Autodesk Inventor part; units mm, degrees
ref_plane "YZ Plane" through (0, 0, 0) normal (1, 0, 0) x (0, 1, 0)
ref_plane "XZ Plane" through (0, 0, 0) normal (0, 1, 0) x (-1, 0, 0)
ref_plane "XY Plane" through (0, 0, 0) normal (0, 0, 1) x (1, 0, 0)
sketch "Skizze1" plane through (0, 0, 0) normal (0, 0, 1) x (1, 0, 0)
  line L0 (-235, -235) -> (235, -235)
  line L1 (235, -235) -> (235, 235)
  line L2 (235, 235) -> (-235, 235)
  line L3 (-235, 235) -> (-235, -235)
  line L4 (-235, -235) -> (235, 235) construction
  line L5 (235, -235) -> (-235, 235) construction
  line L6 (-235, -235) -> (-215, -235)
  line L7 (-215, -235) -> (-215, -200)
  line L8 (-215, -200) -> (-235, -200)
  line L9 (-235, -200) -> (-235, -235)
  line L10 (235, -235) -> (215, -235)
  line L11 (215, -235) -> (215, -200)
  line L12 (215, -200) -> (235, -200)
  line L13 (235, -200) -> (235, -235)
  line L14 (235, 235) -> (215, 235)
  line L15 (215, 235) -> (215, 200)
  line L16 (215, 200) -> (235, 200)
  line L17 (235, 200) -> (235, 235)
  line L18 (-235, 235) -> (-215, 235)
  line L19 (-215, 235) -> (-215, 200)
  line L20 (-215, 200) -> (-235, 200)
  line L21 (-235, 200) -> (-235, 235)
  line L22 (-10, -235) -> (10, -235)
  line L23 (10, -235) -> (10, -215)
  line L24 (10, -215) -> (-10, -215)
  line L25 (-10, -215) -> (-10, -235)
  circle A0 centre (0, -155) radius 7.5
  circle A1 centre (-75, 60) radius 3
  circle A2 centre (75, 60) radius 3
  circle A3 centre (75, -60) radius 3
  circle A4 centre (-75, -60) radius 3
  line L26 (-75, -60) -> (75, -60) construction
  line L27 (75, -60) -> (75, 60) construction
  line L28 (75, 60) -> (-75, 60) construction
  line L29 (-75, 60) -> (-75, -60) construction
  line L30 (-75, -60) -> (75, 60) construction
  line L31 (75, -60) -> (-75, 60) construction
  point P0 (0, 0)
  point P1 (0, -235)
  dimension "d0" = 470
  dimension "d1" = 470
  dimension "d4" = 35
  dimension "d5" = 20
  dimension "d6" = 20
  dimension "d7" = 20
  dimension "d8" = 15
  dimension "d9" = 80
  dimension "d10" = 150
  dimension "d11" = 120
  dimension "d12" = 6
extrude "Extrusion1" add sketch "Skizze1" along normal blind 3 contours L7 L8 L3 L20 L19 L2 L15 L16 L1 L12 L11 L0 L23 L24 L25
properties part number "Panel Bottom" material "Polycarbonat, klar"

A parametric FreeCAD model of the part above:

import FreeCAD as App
import Part
import Sketcher

V = App.Vector
Q = App.Units.Quantity


def add_polygon(sketch, points):
    """Adds a closed chain of lines whose ends are joined by coincident constraints."""
    first, n = sketch.GeometryCount, len(points)
    for a, b in zip(points, points[1:] + points[:1]):
        sketch.addGeometry(Part.LineSegment(App.Vector(*a, 0), App.Vector(*b, 0)), False)
    for i in range(n):
        sketch.addConstraint(Sketcher.Constraint("Coincident", first + i, 2, first + (i + 1) % n, 1))

doc = App.newDocument("Part")
params = doc.addObject("Spreadsheet::Sheet", "Params")
for row, (alias, value) in enumerate([
    ("sketch1_diameter", "6 mm"),
    ("sketch1_diameter2", "15 mm"),
    ("sketch1_width", "20 mm"),
    ("sketch1_height", "35 mm"),
    ("sketch1_width2", "205 mm"),
    ("pad1_length", "3 mm"),
], start=1):
    params.set(f"A{row}", alias)
    params.set(f"B{row}", "=" + value)
    params.setAlias(f"B{row}", alias)

body = doc.addObject("PartDesign::Body", "Body")

# Sketch on XY plane
sketch1 = body.newObject("Sketcher::SketchObject", "Sketch")
sketch1.AttachmentSupport = (doc.getObject("XY_Plane"), [""])
sketch1.MapMode = "FlatFace"
add_polygon(sketch1, [(-215, -200), (-215, -235), (-10, -235), (-10, -215), (10, -215), (10, -235), (215, -235), (215, -200), (235, -200), (235, 200), (215, 200), (215, 235), (-215, 235), (-215, 200), (-235, 200), (-235, -200)])  # lines 0-15
sketch1.addGeometry(Part.Circle(V(-75, -60, 0), V(0, 0, 1), 3), False)  # 16
sketch1.addGeometry(Part.Circle(V(0, -155, 0), V(0, 0, 1), 7.5), False)  # 17
sketch1.addGeometry(Part.Circle(V(75, -60, 0), V(0, 0, 1), 3), False)  # 18
sketch1.addGeometry(Part.Circle(V(-75, 60, 0), V(0, 0, 1), 3), False)  # 19
sketch1.addGeometry(Part.Circle(V(75, 60, 0), V(0, 0, 1), 3), False)  # 20
sketch1.addConstraint([
    Sketcher.Constraint("Vertical", 0),
    Sketcher.Constraint("Horizontal", 1),
    Sketcher.Constraint("Vertical", 2),
    Sketcher.Constraint("Horizontal", 3),
    Sketcher.Constraint("Vertical", 4),
    Sketcher.Constraint("Horizontal", 5),
    Sketcher.Constraint("Vertical", 6),
    Sketcher.Constraint("Horizontal", 7),
    Sketcher.Constraint("Vertical", 8),
    Sketcher.Constraint("Horizontal", 9),
    Sketcher.Constraint("Vertical", 10),
    Sketcher.Constraint("Horizontal", 11),
    Sketcher.Constraint("Vertical", 12),
    Sketcher.Constraint("Horizontal", 13),
    Sketcher.Constraint("Vertical", 14),
    Sketcher.Constraint("Horizontal", 15),
    Sketcher.Constraint("Equal", 16, 18),
    Sketcher.Constraint("Equal", 18, 19),
    Sketcher.Constraint("Equal", 19, 20),
    Sketcher.Constraint("Symmetric", 18, 3, 19, 3, -1, 1),
    Sketcher.Constraint("Symmetric", 16, 3, 20, 3, -1, 1),
    Sketcher.Constraint("Symmetric", 0, 2, 10, 2, -1, 1),
    Sketcher.Constraint("Symmetric", 5, 2, 11, 2, -1, 1),
    Sketcher.Constraint("Symmetric", 7, 2, 13, 2, -1, 1),
    Sketcher.Constraint("Symmetric", 16, 3, 18, 3, -2),
    Sketcher.Constraint("Symmetric", 9, 2, 12, 2, -2),
    Sketcher.Constraint("PointOnObject", 17, 3, -2),
    Sketcher.Constraint("Horizontal", 7, 2, 14, 2),
    Sketcher.Constraint("Equal", 1, 5),
    Sketcher.Constraint("Equal", 3, 7),
    Sketcher.Constraint("Equal", 15, 2),
    Sketcher.Constraint("Diameter", 16, Q("6 mm")),
    Sketcher.Constraint("Diameter", 17, Q("15 mm")),
    Sketcher.Constraint("DistanceX", 3, 1, 3, 2, Q("20 mm")),
    Sketcher.Constraint("DistanceY", 0, 2, 0, 1, Q("35 mm")),
    Sketcher.Constraint("DistanceX", 16, 3, 18, 3, Q("150 mm")),
    Sketcher.Constraint("DistanceY", 16, 3, 19, 3, Q("120 mm")),
    Sketcher.Constraint("DistanceY", 0, 2, 17, 3, Q("80 mm")),
    Sketcher.Constraint("DistanceX", 1, 1, 1, 2, Q("205 mm")),
    Sketcher.Constraint("DistanceY", 8, 1, 8, 2, Q("400 mm")),
])
sketch1.setExpression("Constraints[47]", "Params.sketch1_diameter")
sketch1.setExpression("Constraints[48]", "Params.sketch1_diameter2")
sketch1.setExpression("Constraints[49]", "Params.sketch1_width")
sketch1.setExpression("Constraints[50]", "Params.sketch1_height")
sketch1.setExpression("Constraints[54]", "Params.sketch1_width2")
pad1 = body.newObject("PartDesign::Pad", "Pad")
pad1.Profile = sketch1
pad1.setExpression("Length", "Params.pad1_length")

doc.recompute()
